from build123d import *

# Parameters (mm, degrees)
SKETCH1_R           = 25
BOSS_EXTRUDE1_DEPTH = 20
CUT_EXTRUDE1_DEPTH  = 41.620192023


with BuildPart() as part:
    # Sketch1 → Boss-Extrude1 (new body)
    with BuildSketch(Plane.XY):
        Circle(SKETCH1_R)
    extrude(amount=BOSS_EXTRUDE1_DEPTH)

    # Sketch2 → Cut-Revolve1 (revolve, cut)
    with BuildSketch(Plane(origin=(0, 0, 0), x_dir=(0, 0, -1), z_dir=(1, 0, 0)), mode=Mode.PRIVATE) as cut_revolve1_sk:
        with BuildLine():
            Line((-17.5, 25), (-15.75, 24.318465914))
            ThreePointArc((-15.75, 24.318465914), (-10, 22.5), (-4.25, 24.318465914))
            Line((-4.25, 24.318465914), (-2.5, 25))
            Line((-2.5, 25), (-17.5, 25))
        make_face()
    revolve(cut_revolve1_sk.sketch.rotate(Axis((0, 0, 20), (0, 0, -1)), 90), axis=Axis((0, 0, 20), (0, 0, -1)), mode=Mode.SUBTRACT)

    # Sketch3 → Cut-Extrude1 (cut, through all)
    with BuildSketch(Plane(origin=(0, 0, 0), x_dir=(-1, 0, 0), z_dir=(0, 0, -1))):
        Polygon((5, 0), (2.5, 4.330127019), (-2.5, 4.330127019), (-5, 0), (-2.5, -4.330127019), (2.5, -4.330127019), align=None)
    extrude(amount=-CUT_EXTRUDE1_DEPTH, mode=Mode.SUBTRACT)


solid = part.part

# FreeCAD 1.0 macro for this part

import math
import FreeCAD as App
import Part
import Sketcher
from FreeCAD import Vector
Q = App.Units.Quantity

doc = App.newDocument("Part")
params = doc.addObject("Spreadsheet::Sheet", "Params")
for row, (alias, value) in enumerate([
    ("sketch1_diameter", "50 mm"),
    ("pad1_length", "20 mm"),
    ("sketch2_radius", "10 mm"),
    ("sketch2_height", "15 mm"),
    ("groove_angle", "360 deg"),
    ("sketch3_width", "5 mm"),
    ("sketch3_length", "5 mm"),
], start=1):
    params.set(f"A{row}", alias)
    params.set(f"B{row}", "=" + value)
    params.setAlias(f"B{row}", alias)

body = doc.addObject("PartDesign::Body", "Body")

# Sketch on XY plane
sketch1 = body.newObject("Sketcher::SketchObject", "Sketch")
sketch1.AttachmentSupport = (doc.getObject("XY_Plane"), [""])
sketch1.MapMode = "FlatFace"
sketch1.addGeometry(Part.Circle(Vector(0, 0, 0), Vector(0, 0, 1), 25), False)
sketch1.addConstraint([
    Sketcher.Constraint("Coincident", 0, 3, -1, 1),
    Sketcher.Constraint("Diameter", 0, 50.0),
])
sketch1.setExpression("Constraints[1]", "Params.sketch1_diameter")
pad1 = body.newObject("PartDesign::Pad", "Pad")
pad1.Profile = sketch1
pad1.setExpression("Length", "Params.pad1_length")

# Sketch on YZ plane
sketch2 = body.newObject("Sketcher::SketchObject", "Sketch001")
sketch2.AttachmentSupport = (doc.getObject("YZ_Plane"), [""])
sketch2.MapMode = "FlatFace"
sketch2.addGeometry([
    Part.LineSegment(Vector(25, 17.5, 0), Vector(24.3, 15.8, 0)),
    Part.ArcOfCircle(Part.Circle(Vector(32.5, 10, 0), Vector(0, 0, 1), 10), math.radians(145), math.radians(215)),
    Part.LineSegment(Vector(24.3, 4.2, 0), Vector(25, 2.5, 0)),
    Part.LineSegment(Vector(25, 2.5, 0), Vector(25, 17.5, 0)),
], False)
sketch2.addConstraint([
    Sketcher.Constraint("Coincident", 0, 2, 1, 1),
    Sketcher.Constraint("Coincident", 1, 2, 2, 1),
    Sketcher.Constraint("Coincident", 2, 2, 3, 1),
    Sketcher.Constraint("Coincident", 3, 2, 0, 1),
    Sketcher.Constraint("Vertical", 3),
    Sketcher.Constraint("Vertical", 0, 2, 1, 2),
    Sketcher.Constraint("Equal", 0, 2),
    Sketcher.Constraint("Radius", 1, 10.0),
    Sketcher.Constraint("DistanceY", 3, 1, 3, 2, 15.0),
    Sketcher.Constraint("DistanceY", -1, 1, 1, 3, 10.0),
    Sketcher.Constraint("DistanceX", -1, 1, 2, 2, 25.0),
    Sketcher.Constraint("DistanceX", -1, 1, 1, 3, 32.5),
    Sketcher.Constraint("DistanceY", 1, 2, 0, 2, 11.5),
])
sketch2.setExpression("Constraints[7]", "Params.sketch2_radius")
sketch2.setExpression("Constraints[8]", "Params.sketch2_height")
groove = body.newObject("PartDesign::Groove", "Groove")
groove.Profile = sketch2
groove.ReferenceAxis = (sketch2, ["V_Axis"])
groove.setExpression("Angle", "Params.groove_angle")

# Sketch on XY plane
sketch3 = body.newObject("Sketcher::SketchObject", "Sketch002")
sketch3.AttachmentSupport = (doc.getObject("XY_Plane"), [""])
sketch3.MapMode = "FlatFace"
sketch3.addGeometry([
    Part.LineSegment(Vector(-5, 0, 0), Vector(-2, 4, 0)),  # 0
    Part.LineSegment(Vector(-2, 4, 0), Vector(2, 4, 0)),  # 1
    Part.LineSegment(Vector(2, 4, 0), Vector(5, 0, 0)),  # 2
    Part.LineSegment(Vector(5, 0, 0), Vector(2, -4, 0)),  # 3
    Part.LineSegment(Vector(2, -4, 0), Vector(-2, -4, 0)),  # 4
    Part.LineSegment(Vector(-2, -4, 0), Vector(-5, 0, 0)),  # 5
], False)
sketch3.addConstraint([
    Sketcher.Constraint("Coincident", 0, 2, 1, 1),
    Sketcher.Constraint("Coincident", 1, 2, 2, 1),
    Sketcher.Constraint("Coincident", 2, 2, 3, 1),
    Sketcher.Constraint("Coincident", 3, 2, 4, 1),
    Sketcher.Constraint("Coincident", 4, 2, 5, 1),
    Sketcher.Constraint("Coincident", 5, 2, 0, 1),
    Sketcher.Constraint("Horizontal", 1),
    Sketcher.Constraint("Horizontal", 4),
    Sketcher.Constraint("Symmetric", 0, 2, 3, 2, -1, 1),
    Sketcher.Constraint("Symmetric", 2, 2, 5, 2, -1, 1),
    Sketcher.Constraint("PointOnObject", 2, 2, -1),
    Sketcher.Constraint("Parallel", 2, 5),
    Sketcher.Constraint("Vertical", 1, 2, 3, 2),
    Sketcher.Constraint("DistanceX", 1, 1, 1, 2, 5.0),
    Sketcher.Constraint("Angle", 0, Q("60 deg")),
    Sketcher.Constraint("Distance", 0, 5.0),
])
sketch3.setExpression("Constraints[13]", "Params.sketch3_width")
sketch3.setExpression("Constraints[15]", "Params.sketch3_length")
pocket1 = body.newObject("PartDesign::Pocket", "Pocket")
pocket1.Profile = sketch3
pocket1.Type = "ThroughAll"
pocket1.Reversed = True

doc.recompute()
